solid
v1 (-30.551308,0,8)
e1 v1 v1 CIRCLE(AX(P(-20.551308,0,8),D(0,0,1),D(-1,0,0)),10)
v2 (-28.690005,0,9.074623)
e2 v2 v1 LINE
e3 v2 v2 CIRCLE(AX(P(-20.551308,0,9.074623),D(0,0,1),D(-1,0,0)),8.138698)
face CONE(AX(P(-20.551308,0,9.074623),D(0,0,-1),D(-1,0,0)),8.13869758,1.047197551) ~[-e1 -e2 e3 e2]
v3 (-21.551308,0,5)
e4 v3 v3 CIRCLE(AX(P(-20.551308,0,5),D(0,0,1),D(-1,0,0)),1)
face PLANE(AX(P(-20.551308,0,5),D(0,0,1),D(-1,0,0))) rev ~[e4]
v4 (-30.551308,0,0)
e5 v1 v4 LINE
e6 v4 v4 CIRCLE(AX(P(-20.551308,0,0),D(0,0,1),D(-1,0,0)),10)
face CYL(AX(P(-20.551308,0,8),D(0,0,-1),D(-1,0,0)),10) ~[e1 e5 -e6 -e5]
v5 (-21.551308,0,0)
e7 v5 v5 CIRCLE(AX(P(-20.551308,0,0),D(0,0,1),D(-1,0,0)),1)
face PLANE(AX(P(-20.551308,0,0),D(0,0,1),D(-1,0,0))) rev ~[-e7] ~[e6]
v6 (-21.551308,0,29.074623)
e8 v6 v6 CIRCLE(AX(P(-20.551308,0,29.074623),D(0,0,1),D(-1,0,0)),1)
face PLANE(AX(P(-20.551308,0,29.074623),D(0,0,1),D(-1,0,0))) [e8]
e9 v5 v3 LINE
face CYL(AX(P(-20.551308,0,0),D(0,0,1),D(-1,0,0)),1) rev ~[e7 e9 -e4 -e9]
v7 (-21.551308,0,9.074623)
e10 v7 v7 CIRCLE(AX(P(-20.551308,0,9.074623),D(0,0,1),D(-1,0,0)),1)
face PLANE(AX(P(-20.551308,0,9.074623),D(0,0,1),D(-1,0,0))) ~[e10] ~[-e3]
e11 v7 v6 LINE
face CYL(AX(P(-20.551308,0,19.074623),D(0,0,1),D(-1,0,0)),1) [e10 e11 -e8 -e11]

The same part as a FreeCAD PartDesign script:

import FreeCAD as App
import Part
import Sketcher
from FreeCAD import Vector
Q = App.Units.Quantity

doc = App.newDocument("Part")
body = doc.addObject("PartDesign::Body", "Body")

sketch1 = doc.addObject("Sketcher::SketchObject", "Sketch")
body.addObject(sketch1)
sketch1.AttachmentSupport = (doc.XZ_Plane, [""])
sketch1.MapMode = "FlatFace"
sketch1.addGeometry([
    Part.LineSegment(Vector(-21.6, 29.1, 0), Vector(-21.6, 9.1, 0)),
    Part.LineSegment(Vector(-21.6, 9.1, 0), Vector(-28.7, 9.1, 0)),
    Part.LineSegment(Vector(-28.7, 9.1, 0), Vector(-30.6, 8, 0)),
    Part.LineSegment(Vector(-30.6, 8, 0), Vector(-30.6, 0, 0)),
    Part.LineSegment(Vector(-30.6, 0, 0), Vector(-21.6, 0, 0)),
    Part.LineSegment(Vector(-21.6, 0, 0), Vector(-21.6, 5, 0)),
    Part.LineSegment(Vector(-21.6, 5, 0), Vector(-20.6, 5, 0)),
    Part.LineSegment(Vector(-20.6, 5, 0), Vector(-20.6, 29.1, 0)),
    Part.LineSegment(Vector(-20.6, 29.1, 0), Vector(-21.6, 29.1, 0)),
], False)
sketch1.addGeometry(Part.LineSegment(Vector(-20.6, 0, 0), Vector(-20.6, 29.1, 0)), True)
sketch1.addConstraint([
    Sketcher.Constraint("Coincident", 0, 2, 1, 1),
    Sketcher.Constraint("Coincident", 1, 2, 2, 1),
    Sketcher.Constraint("Coincident", 2, 2, 3, 1),
    Sketcher.Constraint("Coincident", 3, 2, 4, 1),
    Sketcher.Constraint("Coincident", 4, 2, 5, 1),
    Sketcher.Constraint("Coincident", 5, 2, 6, 1),
    Sketcher.Constraint("Coincident", 6, 2, 7, 1),
    Sketcher.Constraint("Coincident", 7, 2, 8, 1),
    Sketcher.Constraint("Coincident", 8, 2, 0, 1),
    Sketcher.Constraint("Vertical", 0),
    Sketcher.Constraint("Horizontal", 1),
    Sketcher.Constraint("Vertical", 3),
    Sketcher.Constraint("Horizontal", 4),
    Sketcher.Constraint("Vertical", 5),
    Sketcher.Constraint("Horizontal", 6),
    Sketcher.Constraint("Vertical", 7),
    Sketcher.Constraint("Horizontal", 8),
    Sketcher.Constraint("Vertical", 9),
    Sketcher.Constraint("Coincident", 9, 2, 7, 2),
    Sketcher.Constraint("PointOnObject", 3, 2, -1),
    Sketcher.Constraint("PointOnObject", 9, 1, -1),
    Sketcher.Constraint("Vertical", 0, 2, 4, 2),
    Sketcher.Constraint("DistanceX", 4, 1, 4, 2, 9.0),
    Sketcher.Constraint("DistanceX", 6, 1, 6, 2, 1.0),
    Sketcher.Constraint("DistanceY", 0, 2, 0, 1, 20.0),
    Sketcher.Constraint("DistanceY", 3, 2, 3, 1, 8.0),
    Sketcher.Constraint("DistanceY", 5, 1, 5, 2, 5.0),
    Sketcher.Constraint("Angle", 2, Q("-150 deg")),
    Sketcher.Constraint("DistanceX", 1, 2, 1, 1, 7.138698),
    Sketcher.Constraint("DistanceX", 0, 2, -1, 1, 21.551308),
])
revolution = doc.addObject("PartDesign::Revolution", "Revolution")
body.addObject(revolution)
revolution.Profile = sketch1
revolution.ReferenceAxis = (sketch1, ["Axis0"])
revolution.Angle = 360

doc.recompute()
